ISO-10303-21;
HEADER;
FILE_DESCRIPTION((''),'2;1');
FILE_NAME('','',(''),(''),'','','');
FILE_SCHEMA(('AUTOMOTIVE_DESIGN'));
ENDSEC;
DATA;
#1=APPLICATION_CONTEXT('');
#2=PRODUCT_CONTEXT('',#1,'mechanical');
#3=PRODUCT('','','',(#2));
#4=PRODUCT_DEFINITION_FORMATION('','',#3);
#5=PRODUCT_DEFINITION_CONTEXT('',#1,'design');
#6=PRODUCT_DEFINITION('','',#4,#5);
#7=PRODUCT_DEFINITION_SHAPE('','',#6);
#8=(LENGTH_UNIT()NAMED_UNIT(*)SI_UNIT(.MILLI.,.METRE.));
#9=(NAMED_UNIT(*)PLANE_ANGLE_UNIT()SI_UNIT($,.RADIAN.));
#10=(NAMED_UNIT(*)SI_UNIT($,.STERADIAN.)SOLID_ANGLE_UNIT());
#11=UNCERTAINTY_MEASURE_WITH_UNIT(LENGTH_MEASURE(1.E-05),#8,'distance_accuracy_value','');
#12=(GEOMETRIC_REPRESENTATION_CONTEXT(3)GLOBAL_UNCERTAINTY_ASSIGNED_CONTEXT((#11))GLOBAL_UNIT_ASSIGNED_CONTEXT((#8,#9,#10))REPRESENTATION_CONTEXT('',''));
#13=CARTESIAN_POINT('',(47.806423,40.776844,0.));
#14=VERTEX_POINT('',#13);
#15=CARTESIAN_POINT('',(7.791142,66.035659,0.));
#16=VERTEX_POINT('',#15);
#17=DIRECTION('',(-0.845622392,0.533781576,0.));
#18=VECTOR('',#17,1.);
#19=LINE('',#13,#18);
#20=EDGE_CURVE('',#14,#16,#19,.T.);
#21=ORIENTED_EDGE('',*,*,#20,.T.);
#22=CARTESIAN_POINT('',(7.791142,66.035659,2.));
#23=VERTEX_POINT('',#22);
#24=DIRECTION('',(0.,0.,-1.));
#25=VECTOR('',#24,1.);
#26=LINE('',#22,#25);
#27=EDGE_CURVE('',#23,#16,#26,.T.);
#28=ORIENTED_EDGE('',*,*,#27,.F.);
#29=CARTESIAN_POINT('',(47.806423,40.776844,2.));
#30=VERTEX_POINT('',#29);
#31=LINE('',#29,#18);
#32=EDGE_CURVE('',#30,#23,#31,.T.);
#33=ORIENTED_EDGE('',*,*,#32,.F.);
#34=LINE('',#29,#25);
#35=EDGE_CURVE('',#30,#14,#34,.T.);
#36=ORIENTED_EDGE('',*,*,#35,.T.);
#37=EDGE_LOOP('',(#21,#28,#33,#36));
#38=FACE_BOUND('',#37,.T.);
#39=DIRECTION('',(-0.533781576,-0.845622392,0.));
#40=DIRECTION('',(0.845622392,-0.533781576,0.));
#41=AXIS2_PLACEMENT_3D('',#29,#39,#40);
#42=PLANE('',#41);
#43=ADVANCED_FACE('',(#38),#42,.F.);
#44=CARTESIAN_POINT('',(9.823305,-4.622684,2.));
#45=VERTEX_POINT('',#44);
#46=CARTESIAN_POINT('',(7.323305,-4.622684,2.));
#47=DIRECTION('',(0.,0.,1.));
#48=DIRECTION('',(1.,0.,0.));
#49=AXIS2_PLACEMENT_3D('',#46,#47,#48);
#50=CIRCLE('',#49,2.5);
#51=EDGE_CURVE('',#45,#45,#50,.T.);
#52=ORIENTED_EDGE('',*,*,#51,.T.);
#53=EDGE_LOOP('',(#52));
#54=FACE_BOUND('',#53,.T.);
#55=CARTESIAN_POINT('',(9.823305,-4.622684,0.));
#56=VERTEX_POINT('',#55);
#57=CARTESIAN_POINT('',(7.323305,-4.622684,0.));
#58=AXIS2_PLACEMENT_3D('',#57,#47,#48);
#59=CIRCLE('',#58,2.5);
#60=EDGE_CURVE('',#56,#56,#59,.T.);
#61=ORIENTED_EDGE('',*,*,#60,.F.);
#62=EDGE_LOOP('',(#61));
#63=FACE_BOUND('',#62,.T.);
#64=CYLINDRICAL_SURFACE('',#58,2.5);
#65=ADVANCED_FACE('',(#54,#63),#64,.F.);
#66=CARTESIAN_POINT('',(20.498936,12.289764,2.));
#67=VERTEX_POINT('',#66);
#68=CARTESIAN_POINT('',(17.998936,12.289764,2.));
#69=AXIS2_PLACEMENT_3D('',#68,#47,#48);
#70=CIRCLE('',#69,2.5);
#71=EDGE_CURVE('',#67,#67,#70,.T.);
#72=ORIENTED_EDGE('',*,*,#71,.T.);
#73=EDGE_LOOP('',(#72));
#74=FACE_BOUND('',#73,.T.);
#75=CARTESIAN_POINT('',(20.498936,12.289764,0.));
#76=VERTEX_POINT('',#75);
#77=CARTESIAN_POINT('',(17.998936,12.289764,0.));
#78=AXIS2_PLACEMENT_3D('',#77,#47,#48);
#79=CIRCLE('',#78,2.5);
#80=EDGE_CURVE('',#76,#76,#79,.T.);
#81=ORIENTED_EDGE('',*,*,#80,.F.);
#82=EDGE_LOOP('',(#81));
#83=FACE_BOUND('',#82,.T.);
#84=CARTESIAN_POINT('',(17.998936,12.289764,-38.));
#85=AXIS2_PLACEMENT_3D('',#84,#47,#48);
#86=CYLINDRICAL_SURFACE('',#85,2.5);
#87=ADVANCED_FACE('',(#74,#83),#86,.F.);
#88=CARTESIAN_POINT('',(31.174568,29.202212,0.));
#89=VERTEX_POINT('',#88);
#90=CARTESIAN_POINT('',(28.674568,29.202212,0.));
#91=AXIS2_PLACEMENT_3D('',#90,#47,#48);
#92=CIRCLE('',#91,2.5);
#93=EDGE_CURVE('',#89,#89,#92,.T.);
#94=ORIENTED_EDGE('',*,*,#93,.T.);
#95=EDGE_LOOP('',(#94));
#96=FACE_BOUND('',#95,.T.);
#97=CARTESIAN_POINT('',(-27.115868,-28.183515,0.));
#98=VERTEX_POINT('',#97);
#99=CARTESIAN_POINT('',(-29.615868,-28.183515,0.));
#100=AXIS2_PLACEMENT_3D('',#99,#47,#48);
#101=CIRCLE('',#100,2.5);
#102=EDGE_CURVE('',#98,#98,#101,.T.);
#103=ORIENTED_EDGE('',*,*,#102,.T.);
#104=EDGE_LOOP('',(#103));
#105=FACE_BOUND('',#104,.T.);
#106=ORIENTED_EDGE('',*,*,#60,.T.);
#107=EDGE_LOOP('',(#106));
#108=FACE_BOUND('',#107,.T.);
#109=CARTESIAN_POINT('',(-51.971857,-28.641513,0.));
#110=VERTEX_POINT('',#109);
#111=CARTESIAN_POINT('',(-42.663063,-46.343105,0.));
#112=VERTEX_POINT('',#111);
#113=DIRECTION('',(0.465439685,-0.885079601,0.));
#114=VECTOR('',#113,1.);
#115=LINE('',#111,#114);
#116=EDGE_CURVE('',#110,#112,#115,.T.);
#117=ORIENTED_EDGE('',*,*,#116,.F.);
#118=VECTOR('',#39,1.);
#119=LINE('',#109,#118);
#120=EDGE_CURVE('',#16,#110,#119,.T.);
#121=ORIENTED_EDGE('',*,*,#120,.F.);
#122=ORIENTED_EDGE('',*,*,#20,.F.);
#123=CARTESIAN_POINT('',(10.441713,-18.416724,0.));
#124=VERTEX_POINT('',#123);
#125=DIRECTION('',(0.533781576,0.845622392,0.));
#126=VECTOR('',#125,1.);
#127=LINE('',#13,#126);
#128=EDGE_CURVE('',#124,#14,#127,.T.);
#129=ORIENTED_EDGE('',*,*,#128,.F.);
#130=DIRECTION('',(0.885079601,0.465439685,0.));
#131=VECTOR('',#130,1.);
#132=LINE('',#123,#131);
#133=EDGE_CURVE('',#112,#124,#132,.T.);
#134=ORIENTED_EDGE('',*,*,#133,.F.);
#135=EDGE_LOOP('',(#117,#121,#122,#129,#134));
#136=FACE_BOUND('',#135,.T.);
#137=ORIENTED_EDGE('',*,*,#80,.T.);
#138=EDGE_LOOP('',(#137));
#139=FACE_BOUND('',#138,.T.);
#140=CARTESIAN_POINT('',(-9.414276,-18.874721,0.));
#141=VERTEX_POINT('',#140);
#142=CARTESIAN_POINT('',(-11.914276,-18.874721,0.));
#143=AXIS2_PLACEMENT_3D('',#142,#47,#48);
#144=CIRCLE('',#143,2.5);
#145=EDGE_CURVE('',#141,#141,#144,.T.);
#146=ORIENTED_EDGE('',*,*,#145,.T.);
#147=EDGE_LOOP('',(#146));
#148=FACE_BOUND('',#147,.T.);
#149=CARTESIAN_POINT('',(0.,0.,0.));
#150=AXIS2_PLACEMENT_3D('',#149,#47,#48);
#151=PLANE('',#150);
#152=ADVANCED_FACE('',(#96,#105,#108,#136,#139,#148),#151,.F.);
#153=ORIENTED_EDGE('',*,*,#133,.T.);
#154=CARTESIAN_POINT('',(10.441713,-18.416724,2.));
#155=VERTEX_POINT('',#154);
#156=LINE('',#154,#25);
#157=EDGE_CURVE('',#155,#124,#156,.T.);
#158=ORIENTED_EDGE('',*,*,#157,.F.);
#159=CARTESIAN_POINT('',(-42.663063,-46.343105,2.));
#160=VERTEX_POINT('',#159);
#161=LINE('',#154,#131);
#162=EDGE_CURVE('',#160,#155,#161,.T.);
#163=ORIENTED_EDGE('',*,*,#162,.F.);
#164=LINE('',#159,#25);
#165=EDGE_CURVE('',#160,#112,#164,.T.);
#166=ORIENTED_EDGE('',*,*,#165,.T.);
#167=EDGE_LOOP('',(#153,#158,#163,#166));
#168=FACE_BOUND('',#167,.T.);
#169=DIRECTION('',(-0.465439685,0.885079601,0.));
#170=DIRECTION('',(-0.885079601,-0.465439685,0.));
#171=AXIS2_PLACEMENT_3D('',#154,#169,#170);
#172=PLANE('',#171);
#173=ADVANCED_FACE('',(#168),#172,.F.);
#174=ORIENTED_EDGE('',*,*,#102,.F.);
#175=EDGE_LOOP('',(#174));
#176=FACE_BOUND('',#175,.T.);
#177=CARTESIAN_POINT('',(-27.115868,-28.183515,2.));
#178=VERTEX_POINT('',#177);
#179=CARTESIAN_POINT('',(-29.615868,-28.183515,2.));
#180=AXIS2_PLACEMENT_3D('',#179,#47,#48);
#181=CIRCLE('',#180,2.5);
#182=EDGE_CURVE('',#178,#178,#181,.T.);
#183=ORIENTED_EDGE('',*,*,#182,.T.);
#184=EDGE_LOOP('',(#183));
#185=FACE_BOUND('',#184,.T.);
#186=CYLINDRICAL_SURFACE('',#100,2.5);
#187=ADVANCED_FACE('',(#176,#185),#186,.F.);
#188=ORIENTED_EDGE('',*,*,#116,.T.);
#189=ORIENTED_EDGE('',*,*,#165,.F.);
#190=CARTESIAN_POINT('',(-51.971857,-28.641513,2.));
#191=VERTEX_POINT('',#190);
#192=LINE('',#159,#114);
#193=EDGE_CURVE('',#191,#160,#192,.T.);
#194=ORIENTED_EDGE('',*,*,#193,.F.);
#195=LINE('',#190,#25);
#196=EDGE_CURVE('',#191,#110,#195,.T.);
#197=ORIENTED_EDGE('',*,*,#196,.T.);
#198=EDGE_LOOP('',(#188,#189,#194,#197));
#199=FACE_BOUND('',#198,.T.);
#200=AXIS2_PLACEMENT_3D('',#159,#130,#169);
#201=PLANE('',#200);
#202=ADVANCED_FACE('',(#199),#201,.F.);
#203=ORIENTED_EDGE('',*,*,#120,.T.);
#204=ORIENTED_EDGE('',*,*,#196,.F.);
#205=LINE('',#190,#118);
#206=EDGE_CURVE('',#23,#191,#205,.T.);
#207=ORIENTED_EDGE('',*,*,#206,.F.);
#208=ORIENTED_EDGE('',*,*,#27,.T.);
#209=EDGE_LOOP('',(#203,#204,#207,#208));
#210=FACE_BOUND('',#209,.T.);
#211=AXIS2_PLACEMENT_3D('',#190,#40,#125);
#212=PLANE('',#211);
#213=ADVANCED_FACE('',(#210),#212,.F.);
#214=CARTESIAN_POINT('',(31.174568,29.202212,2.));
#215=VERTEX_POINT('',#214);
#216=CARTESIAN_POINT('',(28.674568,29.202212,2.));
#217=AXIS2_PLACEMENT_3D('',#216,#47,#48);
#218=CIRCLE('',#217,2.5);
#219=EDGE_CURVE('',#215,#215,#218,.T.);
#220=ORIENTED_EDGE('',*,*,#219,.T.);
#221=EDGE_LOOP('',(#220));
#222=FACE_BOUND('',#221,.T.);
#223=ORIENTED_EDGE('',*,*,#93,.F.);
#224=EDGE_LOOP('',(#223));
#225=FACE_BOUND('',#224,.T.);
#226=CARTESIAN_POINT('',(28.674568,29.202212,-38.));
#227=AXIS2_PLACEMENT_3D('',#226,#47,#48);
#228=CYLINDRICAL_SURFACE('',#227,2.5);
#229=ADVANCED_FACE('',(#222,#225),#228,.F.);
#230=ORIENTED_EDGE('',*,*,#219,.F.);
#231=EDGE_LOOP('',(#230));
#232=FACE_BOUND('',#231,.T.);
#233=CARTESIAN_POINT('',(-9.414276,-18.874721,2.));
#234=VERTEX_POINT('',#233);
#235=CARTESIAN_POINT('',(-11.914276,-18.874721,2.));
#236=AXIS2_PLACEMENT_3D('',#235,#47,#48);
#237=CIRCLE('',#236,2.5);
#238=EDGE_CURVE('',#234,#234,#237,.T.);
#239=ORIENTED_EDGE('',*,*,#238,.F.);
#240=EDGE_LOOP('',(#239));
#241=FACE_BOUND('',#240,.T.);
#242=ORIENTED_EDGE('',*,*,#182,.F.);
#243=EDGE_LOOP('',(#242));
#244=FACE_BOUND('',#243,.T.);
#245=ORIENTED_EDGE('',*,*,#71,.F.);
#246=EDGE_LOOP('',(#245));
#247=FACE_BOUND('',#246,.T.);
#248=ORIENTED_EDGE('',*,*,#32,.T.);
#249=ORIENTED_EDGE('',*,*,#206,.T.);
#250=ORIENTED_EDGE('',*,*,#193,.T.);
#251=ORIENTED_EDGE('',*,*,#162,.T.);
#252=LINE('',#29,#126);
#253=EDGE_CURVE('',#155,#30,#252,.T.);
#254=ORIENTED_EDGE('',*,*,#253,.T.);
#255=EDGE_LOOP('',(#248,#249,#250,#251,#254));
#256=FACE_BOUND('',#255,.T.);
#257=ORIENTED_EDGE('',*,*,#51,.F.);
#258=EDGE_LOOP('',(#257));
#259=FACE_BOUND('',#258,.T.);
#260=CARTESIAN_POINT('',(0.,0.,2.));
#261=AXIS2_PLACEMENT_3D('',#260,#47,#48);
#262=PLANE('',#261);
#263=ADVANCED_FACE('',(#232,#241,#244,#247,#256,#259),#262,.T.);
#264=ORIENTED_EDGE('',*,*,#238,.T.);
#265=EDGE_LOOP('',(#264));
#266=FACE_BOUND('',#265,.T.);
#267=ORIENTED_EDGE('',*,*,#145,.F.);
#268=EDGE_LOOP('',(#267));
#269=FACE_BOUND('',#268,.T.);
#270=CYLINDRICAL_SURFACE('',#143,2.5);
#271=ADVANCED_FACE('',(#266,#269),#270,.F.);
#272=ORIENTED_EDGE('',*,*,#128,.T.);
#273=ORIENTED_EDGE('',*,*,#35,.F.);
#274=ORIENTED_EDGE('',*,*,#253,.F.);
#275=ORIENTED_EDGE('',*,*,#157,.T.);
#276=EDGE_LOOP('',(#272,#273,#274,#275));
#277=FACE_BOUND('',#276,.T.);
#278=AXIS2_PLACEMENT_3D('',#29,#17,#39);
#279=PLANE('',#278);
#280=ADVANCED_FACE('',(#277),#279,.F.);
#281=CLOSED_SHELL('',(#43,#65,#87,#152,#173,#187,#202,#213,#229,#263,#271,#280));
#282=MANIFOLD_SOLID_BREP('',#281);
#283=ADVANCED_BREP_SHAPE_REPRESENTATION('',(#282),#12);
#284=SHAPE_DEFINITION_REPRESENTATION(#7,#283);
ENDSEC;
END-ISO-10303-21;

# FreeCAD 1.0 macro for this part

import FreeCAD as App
import Part
import Sketcher

V = App.Vector

doc = App.newDocument("Part")
body = doc.addObject("PartDesign::Body", "Body")

sketch1 = doc.addObject("Sketcher::SketchObject", "Sketch")
body.addObject(sketch1)
sketch1.AttachmentSupport = (doc.XY_Plane, [""])
sketch1.MapMode = "FlatFace"
sketch1.addGeometry([
    Part.LineSegment(V(47.806423, 40.776844, 0), V(7.791142, 66.035659, 0)),
    Part.LineSegment(V(7.791142, 66.035659, 0), V(-51.971857, -28.641513, 0)),
    Part.LineSegment(V(-51.971857, -28.641513, 0), V(-42.663063, -46.343105, 0)),
    Part.LineSegment(V(-42.663063, -46.343105, 0), V(10.441713, -18.416724, 0)),
    Part.LineSegment(V(10.441713, -18.416724, 0), V(47.806423, 40.776844, 0)),
], False)
sketch1.addConstraint([
    Sketcher.Constraint("Coincident", 0, 2, 1, 1),
    Sketcher.Constraint("Coincident", 1, 2, 2, 1),
    Sketcher.Constraint("Coincident", 2, 2, 3, 1),
    Sketcher.Constraint("Coincident", 3, 2, 4, 1),
    Sketcher.Constraint("Coincident", 4, 2, 0, 1),
    Sketcher.Constraint("Perpendicular", 0, 1),
    Sketcher.Constraint("Perpendicular", 2, 3),
    Sketcher.Constraint("Parallel", 1, 4),
    Sketcher.Constraint("Distance", 2, 20.0),
    Sketcher.Constraint("Distance", 3, 60.0),
    Sketcher.Constraint("Distance", 4, 70.0),
    Sketcher.Constraint("DistanceX", 1, 2, 0, 2, 59.762999),
    Sketcher.Constraint("Distance", 0, 47.320508),
    Sketcher.Constraint("DistanceY", -1, 1, 0, 2, 66.035659),
    Sketcher.Constraint("DistanceX", -1, 1, 0, 2, 7.791142),
])
pad1 = doc.addObject("PartDesign::Pad", "Pad")
body.addObject(pad1)
pad1.Profile = sketch1
pad1.Length = 2

sketch2 = doc.addObject("Sketcher::SketchObject", "Sketch001")
body.addObject(sketch2)
sketch2.AttachmentSupport = (doc.XY_Plane, [""])
sketch2.MapMode = "FlatFace"
sketch2.AttachmentOffset = App.Placement(V(0, 0, 2), App.Rotation())
sketch2.addGeometry(Part.Circle(V(-11.914276, -18.874721, 0), V(0, 0, 1), 2.5), False)
sketch2.addConstraint([
    Sketcher.Constraint("Diameter", 0, 5.0),
    Sketcher.Constraint("DistanceY", 0, 3, -1, 1, 18.874721),
    Sketcher.Constraint("DistanceX", 0, 3, -1, 1, 11.914276),
])
pocket1 = doc.addObject("PartDesign::Pocket", "Pocket")
body.addObject(pocket1)
pocket1.Profile = sketch2
pocket1.Length = 2

sketch3 = doc.addObject("Sketcher::SketchObject", "Sketch002")
body.addObject(sketch3)
sketch3.AttachmentSupport = (doc.XY_Plane, [""])
sketch3.MapMode = "FlatFace"
sketch3.AttachmentOffset = App.Placement(V(0, 0, 2), App.Rotation())
sketch3.addGeometry(Part.Circle(V(-29.615868, -28.183515, 0), V(0, 0, 1), 2.5), False)
sketch3.addConstraint([
    Sketcher.Constraint("Diameter", 0, 5.0),
    Sketcher.Constraint("DistanceX", 0, 3, -1, 1, 29.615868),
    Sketcher.Constraint("DistanceY", 0, 3, -1, 1, 28.183515),
])
pocket2 = doc.addObject("PartDesign::Pocket", "Pocket001")
body.addObject(pocket2)
pocket2.Profile = sketch3
pocket2.Length = 2

sketch4 = doc.addObject("Sketcher::SketchObject", "Sketch003")
body.addObject(sketch4)
sketch4.AttachmentSupport = (doc.XY_Plane, [""])
sketch4.MapMode = "FlatFace"
sketch4.AttachmentOffset = App.Placement(V(0, 0, 2), App.Rotation())
sketch4.addGeometry(Part.Circle(V(7.323305, -4.622684, 0), V(0, 0, 1), 2.5), False)
sketch4.addConstraint([
    Sketcher.Constraint("Diameter", 0, 5.0),
    Sketcher.Constraint("DistanceX", -1, 1, 0, 3, 7.323305),
    Sketcher.Constraint("DistanceY", 0, 3, -1, 1, 4.622684),
])
pocket3 = doc.addObject("PartDesign::Pocket", "Pocket002")
body.addObject(pocket3)
pocket3.Profile = sketch4
pocket3.Length = 2

sketch5 = doc.addObject("Sketcher::SketchObject", "Sketch004")
body.addObject(sketch5)
sketch5.AttachmentSupport = (doc.XY_Plane, [""])
sketch5.MapMode = "FlatFace"
sketch5.AttachmentOffset = App.Placement(V(0, 0, 2), App.Rotation())
sketch5.addGeometry(Part.Circle(V(17.998936, 12.289764, 0), V(0, 0, 1), 2.5), False)
sketch5.addConstraint([
    Sketcher.Constraint("Diameter", 0, 5.0),
    Sketcher.Constraint("DistanceX", -1, 1, 0, 3, 17.998936),
    Sketcher.Constraint("DistanceY", -1, 1, 0, 3, 12.289764),
])
pocket4 = doc.addObject("PartDesign::Pocket", "Pocket003")
body.addObject(pocket4)
pocket4.Profile = sketch5
pocket4.Length = 40

sketch6 = doc.addObject("Sketcher::SketchObject", "Sketch005")
body.addObject(sketch6)
sketch6.AttachmentSupport = (doc.XY_Plane, [""])
sketch6.MapMode = "FlatFace"
sketch6.AttachmentOffset = App.Placement(V(0, 0, 2), App.Rotation())
sketch6.addGeometry(Part.Circle(V(28.674568, 29.202212, 0), V(0, 0, 1), 2.5), False)
sketch6.addConstraint([
    Sketcher.Constraint("Diameter", 0, 5.0),
    Sketcher.Constraint("DistanceY", -1, 1, 0, 3, 29.202212),
    Sketcher.Constraint("DistanceX", -1, 1, 0, 3, 28.674568),
])
pocket5 = doc.addObject("PartDesign::Pocket", "Pocket004")
body.addObject(pocket5)
pocket5.Profile = sketch6
pocket5.Length = 40

doc.recompute()
